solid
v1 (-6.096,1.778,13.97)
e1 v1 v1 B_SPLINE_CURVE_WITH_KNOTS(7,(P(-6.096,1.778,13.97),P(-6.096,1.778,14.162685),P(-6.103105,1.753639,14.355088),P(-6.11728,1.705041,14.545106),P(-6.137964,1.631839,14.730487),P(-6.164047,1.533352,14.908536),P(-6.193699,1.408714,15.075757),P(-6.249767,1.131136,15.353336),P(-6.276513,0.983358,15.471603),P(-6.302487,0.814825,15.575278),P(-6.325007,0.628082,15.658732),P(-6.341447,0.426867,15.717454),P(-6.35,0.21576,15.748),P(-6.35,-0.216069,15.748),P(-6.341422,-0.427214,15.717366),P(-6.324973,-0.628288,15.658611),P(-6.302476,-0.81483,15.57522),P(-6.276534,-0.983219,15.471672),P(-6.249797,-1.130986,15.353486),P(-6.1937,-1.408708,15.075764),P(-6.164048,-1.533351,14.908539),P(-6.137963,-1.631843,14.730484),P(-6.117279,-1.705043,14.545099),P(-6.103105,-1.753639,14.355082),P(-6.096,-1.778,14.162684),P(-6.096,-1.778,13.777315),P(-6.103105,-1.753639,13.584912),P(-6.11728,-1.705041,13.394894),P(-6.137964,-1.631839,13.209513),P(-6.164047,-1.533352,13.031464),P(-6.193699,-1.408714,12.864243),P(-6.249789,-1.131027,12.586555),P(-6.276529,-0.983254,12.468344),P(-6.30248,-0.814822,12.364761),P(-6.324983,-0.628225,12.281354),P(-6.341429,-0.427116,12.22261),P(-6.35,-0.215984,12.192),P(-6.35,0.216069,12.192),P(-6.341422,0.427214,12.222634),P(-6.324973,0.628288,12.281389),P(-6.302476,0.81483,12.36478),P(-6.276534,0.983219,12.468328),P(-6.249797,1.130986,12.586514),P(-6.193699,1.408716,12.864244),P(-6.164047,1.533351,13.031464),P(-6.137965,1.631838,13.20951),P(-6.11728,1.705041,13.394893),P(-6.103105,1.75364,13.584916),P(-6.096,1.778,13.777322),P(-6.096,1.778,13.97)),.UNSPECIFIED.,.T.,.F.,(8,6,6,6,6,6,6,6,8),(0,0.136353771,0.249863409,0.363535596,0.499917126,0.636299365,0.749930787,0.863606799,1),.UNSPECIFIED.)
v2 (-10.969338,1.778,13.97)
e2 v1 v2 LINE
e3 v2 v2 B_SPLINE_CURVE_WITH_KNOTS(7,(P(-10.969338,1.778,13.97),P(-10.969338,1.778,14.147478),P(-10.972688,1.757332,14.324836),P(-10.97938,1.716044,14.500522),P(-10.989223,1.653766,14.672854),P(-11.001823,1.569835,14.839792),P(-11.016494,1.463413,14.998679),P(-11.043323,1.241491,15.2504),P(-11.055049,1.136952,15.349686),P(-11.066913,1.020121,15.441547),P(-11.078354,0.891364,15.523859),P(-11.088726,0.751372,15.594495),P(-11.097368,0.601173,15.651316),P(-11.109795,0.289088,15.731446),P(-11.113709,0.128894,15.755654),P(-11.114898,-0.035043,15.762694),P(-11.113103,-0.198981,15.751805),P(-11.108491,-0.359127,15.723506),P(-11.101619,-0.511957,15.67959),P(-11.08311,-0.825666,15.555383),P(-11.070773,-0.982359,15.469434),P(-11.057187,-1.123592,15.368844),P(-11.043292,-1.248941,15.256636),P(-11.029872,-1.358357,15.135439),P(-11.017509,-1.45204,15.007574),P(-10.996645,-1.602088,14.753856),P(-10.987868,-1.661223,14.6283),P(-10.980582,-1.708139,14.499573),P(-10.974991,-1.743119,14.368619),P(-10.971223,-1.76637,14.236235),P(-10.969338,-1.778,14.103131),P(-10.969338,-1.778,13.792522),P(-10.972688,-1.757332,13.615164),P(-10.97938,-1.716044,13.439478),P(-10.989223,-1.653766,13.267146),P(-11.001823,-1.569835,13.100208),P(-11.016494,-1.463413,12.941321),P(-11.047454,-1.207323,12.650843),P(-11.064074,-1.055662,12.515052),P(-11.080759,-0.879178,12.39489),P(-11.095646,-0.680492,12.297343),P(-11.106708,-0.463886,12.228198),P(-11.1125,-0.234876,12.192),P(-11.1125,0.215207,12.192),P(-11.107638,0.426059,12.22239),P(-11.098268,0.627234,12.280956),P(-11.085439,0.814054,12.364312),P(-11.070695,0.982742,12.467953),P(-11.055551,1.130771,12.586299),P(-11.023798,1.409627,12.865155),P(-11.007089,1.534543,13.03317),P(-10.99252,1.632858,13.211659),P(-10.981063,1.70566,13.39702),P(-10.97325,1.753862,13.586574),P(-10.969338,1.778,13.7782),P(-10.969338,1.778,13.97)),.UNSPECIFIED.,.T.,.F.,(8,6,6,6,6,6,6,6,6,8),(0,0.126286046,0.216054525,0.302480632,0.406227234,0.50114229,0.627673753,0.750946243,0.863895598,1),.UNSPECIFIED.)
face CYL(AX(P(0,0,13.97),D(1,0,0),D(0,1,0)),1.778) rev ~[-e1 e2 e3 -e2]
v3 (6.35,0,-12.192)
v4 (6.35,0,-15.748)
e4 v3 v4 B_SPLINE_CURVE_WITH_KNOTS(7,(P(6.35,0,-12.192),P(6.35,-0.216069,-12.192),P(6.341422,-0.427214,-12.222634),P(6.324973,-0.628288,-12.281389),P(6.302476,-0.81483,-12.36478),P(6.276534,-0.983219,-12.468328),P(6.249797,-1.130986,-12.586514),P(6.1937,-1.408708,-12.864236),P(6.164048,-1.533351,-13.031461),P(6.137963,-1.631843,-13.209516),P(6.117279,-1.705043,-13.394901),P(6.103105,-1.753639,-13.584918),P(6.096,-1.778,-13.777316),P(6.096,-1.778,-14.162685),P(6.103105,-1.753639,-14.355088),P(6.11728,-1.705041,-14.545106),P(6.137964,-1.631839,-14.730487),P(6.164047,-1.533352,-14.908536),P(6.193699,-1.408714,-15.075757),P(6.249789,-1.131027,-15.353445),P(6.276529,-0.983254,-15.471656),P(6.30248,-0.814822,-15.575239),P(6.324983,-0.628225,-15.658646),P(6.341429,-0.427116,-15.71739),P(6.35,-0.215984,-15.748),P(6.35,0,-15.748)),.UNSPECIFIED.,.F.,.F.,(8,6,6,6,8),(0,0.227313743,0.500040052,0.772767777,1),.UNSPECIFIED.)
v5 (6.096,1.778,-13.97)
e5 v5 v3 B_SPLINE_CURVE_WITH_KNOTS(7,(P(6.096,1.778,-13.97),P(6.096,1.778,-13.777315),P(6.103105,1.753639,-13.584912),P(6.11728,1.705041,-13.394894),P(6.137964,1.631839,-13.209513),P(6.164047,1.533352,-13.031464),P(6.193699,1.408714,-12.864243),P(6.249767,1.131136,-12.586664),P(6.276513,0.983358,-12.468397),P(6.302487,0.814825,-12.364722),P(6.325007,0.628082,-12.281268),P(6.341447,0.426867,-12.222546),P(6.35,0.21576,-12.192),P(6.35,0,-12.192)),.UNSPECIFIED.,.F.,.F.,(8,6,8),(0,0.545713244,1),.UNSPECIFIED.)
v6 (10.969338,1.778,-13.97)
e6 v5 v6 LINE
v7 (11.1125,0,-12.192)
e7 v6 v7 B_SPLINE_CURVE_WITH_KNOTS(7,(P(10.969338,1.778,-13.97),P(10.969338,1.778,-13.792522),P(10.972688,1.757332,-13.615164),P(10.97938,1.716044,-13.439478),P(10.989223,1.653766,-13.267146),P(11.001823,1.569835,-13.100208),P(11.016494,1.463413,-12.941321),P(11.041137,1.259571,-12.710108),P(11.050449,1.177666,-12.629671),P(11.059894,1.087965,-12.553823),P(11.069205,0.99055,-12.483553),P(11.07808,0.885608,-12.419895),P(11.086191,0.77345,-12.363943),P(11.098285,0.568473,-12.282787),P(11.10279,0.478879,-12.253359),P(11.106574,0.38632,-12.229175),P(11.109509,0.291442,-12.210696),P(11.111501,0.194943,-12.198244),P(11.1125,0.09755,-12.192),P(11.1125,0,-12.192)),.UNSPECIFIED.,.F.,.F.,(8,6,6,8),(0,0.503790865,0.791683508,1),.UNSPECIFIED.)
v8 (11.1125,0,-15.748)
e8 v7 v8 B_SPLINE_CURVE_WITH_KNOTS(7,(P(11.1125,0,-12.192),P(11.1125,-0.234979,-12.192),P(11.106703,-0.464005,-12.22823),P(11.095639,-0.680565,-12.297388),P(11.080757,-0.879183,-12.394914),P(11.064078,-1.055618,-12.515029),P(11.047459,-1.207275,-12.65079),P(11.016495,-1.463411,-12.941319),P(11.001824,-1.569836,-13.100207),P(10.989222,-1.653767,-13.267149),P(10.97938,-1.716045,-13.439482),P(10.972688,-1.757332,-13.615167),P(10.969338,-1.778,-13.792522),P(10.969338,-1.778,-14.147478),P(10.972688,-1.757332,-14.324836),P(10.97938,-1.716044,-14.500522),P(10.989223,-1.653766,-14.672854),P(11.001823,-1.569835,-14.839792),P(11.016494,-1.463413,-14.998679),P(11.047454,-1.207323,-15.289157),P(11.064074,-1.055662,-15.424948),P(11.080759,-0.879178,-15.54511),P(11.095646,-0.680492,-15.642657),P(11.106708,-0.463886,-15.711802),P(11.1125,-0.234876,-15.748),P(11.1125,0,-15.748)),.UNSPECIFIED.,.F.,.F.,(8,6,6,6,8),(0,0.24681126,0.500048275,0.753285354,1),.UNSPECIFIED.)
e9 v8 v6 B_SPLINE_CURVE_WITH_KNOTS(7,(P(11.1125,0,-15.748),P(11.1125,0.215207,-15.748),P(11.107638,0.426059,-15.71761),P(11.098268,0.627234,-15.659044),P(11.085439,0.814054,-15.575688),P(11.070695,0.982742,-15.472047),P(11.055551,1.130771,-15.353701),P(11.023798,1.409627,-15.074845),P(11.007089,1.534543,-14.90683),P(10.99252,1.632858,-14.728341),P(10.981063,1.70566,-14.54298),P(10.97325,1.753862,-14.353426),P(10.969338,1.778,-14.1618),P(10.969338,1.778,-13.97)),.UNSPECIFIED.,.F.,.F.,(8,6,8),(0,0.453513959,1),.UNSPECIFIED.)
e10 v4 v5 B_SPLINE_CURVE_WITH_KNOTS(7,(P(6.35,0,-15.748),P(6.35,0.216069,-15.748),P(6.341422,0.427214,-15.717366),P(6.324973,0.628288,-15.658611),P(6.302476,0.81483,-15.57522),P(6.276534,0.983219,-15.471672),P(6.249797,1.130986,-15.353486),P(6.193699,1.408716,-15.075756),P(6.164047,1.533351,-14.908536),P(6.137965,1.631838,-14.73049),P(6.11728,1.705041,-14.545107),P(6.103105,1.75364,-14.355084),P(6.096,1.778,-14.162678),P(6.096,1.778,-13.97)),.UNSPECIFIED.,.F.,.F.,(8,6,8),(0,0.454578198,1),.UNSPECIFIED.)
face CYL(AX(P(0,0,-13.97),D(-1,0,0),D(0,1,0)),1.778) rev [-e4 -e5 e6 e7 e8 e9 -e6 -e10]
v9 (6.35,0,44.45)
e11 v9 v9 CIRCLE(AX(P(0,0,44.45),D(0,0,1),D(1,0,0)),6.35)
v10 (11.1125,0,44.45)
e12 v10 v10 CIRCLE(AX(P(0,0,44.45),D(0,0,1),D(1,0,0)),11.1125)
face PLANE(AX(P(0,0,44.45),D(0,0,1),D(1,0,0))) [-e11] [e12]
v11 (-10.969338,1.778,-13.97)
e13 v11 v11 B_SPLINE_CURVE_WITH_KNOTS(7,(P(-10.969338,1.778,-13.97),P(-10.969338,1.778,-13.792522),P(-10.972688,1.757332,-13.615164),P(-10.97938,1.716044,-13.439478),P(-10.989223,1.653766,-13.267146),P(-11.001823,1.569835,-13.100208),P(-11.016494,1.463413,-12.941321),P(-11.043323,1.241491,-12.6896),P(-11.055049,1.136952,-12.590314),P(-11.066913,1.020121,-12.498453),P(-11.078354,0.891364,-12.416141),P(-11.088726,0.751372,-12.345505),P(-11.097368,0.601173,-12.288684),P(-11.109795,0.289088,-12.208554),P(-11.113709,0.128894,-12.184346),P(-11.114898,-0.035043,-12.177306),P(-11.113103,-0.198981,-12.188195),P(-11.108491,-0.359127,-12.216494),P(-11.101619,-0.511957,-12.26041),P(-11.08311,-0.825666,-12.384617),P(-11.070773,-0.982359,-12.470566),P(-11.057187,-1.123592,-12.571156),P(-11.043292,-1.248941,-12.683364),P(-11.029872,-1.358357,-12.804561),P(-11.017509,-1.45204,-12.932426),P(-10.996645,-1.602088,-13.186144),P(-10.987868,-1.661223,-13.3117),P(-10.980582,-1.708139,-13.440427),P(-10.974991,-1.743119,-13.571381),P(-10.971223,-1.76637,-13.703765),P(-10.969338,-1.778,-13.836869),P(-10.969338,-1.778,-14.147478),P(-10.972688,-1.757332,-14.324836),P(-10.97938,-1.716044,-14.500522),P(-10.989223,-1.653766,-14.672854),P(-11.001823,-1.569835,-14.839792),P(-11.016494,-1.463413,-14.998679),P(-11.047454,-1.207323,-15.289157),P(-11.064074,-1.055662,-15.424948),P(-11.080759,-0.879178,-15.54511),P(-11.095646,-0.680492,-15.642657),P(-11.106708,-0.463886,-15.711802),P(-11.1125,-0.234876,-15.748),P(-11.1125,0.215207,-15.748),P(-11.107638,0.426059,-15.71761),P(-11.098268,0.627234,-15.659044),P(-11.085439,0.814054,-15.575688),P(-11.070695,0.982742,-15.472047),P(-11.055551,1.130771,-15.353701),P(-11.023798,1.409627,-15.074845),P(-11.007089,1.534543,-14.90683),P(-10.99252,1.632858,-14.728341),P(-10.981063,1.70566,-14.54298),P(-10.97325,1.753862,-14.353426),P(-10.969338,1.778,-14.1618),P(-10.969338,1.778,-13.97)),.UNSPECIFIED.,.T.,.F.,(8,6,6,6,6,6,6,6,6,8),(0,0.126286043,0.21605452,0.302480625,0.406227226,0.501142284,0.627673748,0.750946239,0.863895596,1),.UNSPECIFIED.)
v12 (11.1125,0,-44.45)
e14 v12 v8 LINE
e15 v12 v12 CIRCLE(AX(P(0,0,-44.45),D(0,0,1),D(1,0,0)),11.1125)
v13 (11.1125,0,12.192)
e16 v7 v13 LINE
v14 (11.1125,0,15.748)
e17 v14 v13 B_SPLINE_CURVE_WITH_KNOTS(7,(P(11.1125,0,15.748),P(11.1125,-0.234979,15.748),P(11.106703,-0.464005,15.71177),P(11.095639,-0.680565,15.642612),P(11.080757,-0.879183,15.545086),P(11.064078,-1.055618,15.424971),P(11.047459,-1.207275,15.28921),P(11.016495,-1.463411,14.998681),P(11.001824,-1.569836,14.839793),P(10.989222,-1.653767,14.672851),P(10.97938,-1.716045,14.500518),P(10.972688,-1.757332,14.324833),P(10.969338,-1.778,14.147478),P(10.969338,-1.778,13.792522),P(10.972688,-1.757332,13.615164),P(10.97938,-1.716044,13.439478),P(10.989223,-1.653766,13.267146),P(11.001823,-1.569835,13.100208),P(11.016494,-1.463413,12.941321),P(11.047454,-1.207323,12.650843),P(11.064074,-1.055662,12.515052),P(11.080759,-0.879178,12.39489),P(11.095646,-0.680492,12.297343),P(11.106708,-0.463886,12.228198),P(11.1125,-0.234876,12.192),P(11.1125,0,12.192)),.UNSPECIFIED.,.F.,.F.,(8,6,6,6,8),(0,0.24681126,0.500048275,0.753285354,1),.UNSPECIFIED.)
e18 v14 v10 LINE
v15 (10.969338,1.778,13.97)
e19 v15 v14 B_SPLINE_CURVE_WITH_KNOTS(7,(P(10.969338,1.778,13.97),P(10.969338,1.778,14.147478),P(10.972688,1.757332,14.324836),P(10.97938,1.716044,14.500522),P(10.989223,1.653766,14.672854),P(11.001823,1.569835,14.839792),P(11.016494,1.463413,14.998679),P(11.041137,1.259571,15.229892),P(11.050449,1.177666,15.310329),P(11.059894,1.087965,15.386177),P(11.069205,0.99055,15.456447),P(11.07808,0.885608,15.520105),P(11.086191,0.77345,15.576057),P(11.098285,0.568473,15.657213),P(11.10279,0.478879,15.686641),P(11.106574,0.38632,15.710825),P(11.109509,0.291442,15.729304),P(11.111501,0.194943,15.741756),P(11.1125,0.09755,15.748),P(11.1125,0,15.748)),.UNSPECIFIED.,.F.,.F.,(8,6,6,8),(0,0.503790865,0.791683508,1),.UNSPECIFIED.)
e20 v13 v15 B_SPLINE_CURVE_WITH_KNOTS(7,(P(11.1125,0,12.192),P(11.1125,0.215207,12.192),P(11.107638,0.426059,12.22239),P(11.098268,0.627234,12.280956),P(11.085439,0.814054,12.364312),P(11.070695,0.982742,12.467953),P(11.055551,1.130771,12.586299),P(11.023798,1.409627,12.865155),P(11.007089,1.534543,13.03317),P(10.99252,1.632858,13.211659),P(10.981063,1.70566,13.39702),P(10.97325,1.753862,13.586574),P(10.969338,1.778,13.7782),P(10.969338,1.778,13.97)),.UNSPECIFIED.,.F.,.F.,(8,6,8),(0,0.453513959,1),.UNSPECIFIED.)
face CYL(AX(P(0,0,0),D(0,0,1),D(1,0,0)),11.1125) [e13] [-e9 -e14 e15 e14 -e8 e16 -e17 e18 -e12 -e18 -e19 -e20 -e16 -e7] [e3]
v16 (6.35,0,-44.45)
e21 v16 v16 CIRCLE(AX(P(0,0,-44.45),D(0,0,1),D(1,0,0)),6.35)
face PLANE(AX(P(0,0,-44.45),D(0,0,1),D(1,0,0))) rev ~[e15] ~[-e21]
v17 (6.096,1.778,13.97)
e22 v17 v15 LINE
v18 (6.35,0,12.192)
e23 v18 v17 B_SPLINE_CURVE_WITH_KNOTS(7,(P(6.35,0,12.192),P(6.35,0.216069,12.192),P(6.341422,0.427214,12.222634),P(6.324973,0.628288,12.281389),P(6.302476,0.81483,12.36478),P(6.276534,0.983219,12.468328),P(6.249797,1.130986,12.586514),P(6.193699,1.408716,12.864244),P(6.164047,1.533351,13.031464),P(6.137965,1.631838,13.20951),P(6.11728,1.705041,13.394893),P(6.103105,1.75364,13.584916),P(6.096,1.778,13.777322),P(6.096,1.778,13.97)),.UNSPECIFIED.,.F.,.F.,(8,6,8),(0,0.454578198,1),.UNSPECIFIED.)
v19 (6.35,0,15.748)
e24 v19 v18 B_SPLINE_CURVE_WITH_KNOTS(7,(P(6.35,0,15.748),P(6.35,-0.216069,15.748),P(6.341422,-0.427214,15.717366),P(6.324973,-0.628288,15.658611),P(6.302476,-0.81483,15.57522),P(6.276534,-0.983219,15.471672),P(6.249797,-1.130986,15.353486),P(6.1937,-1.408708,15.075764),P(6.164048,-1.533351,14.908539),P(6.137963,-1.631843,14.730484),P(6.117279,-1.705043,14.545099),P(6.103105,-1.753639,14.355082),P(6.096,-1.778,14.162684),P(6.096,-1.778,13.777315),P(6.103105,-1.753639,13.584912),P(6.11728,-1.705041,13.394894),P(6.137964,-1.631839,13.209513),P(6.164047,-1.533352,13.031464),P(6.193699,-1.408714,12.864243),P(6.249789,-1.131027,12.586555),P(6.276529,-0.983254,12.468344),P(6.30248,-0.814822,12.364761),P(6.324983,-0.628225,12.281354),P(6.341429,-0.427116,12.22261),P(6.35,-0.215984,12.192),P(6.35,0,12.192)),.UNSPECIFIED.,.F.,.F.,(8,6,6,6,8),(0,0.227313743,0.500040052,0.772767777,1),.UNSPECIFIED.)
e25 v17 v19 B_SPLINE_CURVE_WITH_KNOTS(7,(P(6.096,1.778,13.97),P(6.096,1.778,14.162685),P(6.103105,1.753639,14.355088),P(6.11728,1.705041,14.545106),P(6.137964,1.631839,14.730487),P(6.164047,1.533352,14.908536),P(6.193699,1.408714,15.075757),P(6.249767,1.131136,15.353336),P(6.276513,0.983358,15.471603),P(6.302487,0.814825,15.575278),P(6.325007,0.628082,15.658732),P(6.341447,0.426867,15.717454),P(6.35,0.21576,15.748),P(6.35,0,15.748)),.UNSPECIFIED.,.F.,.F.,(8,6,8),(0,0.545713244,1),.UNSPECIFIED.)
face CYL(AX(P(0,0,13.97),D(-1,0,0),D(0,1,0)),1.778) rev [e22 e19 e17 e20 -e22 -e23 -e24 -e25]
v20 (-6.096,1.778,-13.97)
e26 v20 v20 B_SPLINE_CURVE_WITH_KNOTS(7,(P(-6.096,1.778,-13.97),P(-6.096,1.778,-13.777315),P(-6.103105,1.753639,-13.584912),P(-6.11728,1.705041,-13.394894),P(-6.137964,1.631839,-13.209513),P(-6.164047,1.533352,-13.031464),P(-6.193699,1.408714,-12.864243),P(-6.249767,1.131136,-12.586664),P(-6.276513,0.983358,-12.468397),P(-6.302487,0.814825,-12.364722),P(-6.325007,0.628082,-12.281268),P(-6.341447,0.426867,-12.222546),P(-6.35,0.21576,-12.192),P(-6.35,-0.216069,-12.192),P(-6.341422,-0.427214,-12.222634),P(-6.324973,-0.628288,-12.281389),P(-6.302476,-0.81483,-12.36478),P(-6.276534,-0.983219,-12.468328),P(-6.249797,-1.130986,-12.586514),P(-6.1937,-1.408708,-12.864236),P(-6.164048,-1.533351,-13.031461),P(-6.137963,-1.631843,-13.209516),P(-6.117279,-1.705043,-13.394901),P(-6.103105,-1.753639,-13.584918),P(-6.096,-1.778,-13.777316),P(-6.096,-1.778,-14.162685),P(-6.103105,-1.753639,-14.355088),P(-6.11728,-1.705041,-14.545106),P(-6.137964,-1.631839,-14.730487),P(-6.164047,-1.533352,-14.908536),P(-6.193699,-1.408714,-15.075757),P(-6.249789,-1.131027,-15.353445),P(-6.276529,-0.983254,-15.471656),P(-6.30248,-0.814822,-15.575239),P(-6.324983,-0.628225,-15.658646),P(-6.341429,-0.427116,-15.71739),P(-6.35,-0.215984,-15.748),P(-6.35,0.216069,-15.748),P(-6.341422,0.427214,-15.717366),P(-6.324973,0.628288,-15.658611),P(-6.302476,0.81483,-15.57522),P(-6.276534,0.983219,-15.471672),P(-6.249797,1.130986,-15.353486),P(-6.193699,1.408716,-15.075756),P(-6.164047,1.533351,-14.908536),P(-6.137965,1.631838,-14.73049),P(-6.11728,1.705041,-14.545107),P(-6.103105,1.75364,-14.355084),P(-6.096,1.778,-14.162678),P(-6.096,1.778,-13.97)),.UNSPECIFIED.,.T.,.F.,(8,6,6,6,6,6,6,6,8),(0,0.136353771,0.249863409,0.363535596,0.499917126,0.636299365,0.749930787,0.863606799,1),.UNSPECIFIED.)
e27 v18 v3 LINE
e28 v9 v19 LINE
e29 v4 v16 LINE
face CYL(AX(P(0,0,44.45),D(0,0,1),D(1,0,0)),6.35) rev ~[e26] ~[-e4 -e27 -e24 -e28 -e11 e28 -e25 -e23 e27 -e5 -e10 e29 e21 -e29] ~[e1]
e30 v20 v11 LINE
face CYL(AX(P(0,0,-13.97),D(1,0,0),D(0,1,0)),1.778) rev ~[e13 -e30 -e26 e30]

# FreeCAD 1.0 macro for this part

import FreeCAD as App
import Part
import Sketcher
from FreeCAD import Vector
Q = App.Units.Quantity

doc = App.newDocument("Part")
body = doc.addObject("PartDesign::Body", "Body")

sketch1 = body.newObject("Sketcher::SketchObject", "Sketch")
sketch1.AttachmentSupport = (doc.getObject("XY_Plane"), [""])
sketch1.MapMode = "FlatFace"
sketch1.addGeometry(Part.Circle(Vector(0, 0, 0), Vector(0, 0, 1), 11), False)
sketch1.addConstraint([
    Sketcher.Constraint("Coincident", 0, 3, -1, 1),
    Sketcher.Constraint("Diameter", 0, Q("0.875 in")),
])
pad1 = body.newObject("PartDesign::Pad", "Pad")
pad1.Profile = sketch1
pad1.Length = Q("3.5 in")
pad1.Midplane = True

sketch2 = body.newObject("Sketcher::SketchObject", "Sketch001")
sketch2.AttachmentSupport = (doc.getObject("XY_Plane"), [""])
sketch2.MapMode = "FlatFace"
sketch2.AttachmentOffset = App.Placement(Vector(0, 0, 1.75 * 25.4), App.Rotation())
sketch2.addGeometry(Part.Circle(Vector(0, 0, 0), Vector(0, 0, 1), 6), False)
sketch2.addConstraint([
    Sketcher.Constraint("Coincident", 0, 3, -1, 1),
    Sketcher.Constraint("Diameter", 0, Q("0.5 in")),
])
pocket1 = body.newObject("PartDesign::Pocket", "Pocket")
pocket1.Profile = sketch2
pocket1.Type = "ThroughAll"

sketch3 = body.newObject("Sketcher::SketchObject", "Sketch002")
sketch3.AttachmentSupport = (doc.getObject("YZ_Plane"), [""])
sketch3.MapMode = "FlatFace"
sketch3.addGeometry([
    Part.Circle(Vector(0, -14, 0), Vector(0, 0, 1), 1.8),
    Part.Circle(Vector(0, 14, 0), Vector(0, 0, 1), 1.8),
], False)
sketch3.addConstraint([
    Sketcher.Constraint("Equal", 0, 1),
    Sketcher.Constraint("Symmetric", 0, 3, 1, 3, -1, 1),
    Sketcher.Constraint("PointOnObject", 0, 3, -2),
    Sketcher.Constraint("Diameter", 0, Q("0.14 in")),
    Sketcher.Constraint("DistanceY", 0, 3, 1, 3, Q("1.1 in")),
])
pocket2 = body.newObject("PartDesign::Pocket", "Pocket001")
pocket2.Profile = sketch3
pocket2.Type = "ThroughAll"
pocket2.Midplane = True

doc.recompute()
